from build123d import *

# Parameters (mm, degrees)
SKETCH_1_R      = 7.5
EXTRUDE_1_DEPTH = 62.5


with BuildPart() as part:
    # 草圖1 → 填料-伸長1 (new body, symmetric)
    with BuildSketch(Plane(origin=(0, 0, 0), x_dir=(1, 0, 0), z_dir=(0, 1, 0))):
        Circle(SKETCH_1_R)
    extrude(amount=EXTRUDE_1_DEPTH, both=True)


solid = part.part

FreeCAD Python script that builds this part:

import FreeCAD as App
import Part
import Sketcher
from FreeCAD import Vector
Q = App.Units.Quantity

doc = App.newDocument("Part")
body = doc.addObject("PartDesign::Body", "Body")

# Sketch on XZ plane
sketch1 = doc.addObject("Sketcher::SketchObject", "Sketch")
body.addObject(sketch1)
sketch1.AttachmentSupport = (doc.XZ_Plane, [""])
sketch1.MapMode = "FlatFace"
sketch1.addGeometry(Part.Circle(Vector(0, 0, 0), Vector(0, 0, 1), 8), False)
sketch1.addConstraint(Sketcher.Constraint("Coincident", 0, 3, -1, 1))
sketch1.addConstraint(Sketcher.Constraint("Diameter", 0, Q("15 mm")))
pad1 = doc.addObject("PartDesign::Pad", "Pad")
body.addObject(pad1)
pad1.Profile = sketch1
pad1.Length = 125
pad1.Midplane = True

doc.recompute()
